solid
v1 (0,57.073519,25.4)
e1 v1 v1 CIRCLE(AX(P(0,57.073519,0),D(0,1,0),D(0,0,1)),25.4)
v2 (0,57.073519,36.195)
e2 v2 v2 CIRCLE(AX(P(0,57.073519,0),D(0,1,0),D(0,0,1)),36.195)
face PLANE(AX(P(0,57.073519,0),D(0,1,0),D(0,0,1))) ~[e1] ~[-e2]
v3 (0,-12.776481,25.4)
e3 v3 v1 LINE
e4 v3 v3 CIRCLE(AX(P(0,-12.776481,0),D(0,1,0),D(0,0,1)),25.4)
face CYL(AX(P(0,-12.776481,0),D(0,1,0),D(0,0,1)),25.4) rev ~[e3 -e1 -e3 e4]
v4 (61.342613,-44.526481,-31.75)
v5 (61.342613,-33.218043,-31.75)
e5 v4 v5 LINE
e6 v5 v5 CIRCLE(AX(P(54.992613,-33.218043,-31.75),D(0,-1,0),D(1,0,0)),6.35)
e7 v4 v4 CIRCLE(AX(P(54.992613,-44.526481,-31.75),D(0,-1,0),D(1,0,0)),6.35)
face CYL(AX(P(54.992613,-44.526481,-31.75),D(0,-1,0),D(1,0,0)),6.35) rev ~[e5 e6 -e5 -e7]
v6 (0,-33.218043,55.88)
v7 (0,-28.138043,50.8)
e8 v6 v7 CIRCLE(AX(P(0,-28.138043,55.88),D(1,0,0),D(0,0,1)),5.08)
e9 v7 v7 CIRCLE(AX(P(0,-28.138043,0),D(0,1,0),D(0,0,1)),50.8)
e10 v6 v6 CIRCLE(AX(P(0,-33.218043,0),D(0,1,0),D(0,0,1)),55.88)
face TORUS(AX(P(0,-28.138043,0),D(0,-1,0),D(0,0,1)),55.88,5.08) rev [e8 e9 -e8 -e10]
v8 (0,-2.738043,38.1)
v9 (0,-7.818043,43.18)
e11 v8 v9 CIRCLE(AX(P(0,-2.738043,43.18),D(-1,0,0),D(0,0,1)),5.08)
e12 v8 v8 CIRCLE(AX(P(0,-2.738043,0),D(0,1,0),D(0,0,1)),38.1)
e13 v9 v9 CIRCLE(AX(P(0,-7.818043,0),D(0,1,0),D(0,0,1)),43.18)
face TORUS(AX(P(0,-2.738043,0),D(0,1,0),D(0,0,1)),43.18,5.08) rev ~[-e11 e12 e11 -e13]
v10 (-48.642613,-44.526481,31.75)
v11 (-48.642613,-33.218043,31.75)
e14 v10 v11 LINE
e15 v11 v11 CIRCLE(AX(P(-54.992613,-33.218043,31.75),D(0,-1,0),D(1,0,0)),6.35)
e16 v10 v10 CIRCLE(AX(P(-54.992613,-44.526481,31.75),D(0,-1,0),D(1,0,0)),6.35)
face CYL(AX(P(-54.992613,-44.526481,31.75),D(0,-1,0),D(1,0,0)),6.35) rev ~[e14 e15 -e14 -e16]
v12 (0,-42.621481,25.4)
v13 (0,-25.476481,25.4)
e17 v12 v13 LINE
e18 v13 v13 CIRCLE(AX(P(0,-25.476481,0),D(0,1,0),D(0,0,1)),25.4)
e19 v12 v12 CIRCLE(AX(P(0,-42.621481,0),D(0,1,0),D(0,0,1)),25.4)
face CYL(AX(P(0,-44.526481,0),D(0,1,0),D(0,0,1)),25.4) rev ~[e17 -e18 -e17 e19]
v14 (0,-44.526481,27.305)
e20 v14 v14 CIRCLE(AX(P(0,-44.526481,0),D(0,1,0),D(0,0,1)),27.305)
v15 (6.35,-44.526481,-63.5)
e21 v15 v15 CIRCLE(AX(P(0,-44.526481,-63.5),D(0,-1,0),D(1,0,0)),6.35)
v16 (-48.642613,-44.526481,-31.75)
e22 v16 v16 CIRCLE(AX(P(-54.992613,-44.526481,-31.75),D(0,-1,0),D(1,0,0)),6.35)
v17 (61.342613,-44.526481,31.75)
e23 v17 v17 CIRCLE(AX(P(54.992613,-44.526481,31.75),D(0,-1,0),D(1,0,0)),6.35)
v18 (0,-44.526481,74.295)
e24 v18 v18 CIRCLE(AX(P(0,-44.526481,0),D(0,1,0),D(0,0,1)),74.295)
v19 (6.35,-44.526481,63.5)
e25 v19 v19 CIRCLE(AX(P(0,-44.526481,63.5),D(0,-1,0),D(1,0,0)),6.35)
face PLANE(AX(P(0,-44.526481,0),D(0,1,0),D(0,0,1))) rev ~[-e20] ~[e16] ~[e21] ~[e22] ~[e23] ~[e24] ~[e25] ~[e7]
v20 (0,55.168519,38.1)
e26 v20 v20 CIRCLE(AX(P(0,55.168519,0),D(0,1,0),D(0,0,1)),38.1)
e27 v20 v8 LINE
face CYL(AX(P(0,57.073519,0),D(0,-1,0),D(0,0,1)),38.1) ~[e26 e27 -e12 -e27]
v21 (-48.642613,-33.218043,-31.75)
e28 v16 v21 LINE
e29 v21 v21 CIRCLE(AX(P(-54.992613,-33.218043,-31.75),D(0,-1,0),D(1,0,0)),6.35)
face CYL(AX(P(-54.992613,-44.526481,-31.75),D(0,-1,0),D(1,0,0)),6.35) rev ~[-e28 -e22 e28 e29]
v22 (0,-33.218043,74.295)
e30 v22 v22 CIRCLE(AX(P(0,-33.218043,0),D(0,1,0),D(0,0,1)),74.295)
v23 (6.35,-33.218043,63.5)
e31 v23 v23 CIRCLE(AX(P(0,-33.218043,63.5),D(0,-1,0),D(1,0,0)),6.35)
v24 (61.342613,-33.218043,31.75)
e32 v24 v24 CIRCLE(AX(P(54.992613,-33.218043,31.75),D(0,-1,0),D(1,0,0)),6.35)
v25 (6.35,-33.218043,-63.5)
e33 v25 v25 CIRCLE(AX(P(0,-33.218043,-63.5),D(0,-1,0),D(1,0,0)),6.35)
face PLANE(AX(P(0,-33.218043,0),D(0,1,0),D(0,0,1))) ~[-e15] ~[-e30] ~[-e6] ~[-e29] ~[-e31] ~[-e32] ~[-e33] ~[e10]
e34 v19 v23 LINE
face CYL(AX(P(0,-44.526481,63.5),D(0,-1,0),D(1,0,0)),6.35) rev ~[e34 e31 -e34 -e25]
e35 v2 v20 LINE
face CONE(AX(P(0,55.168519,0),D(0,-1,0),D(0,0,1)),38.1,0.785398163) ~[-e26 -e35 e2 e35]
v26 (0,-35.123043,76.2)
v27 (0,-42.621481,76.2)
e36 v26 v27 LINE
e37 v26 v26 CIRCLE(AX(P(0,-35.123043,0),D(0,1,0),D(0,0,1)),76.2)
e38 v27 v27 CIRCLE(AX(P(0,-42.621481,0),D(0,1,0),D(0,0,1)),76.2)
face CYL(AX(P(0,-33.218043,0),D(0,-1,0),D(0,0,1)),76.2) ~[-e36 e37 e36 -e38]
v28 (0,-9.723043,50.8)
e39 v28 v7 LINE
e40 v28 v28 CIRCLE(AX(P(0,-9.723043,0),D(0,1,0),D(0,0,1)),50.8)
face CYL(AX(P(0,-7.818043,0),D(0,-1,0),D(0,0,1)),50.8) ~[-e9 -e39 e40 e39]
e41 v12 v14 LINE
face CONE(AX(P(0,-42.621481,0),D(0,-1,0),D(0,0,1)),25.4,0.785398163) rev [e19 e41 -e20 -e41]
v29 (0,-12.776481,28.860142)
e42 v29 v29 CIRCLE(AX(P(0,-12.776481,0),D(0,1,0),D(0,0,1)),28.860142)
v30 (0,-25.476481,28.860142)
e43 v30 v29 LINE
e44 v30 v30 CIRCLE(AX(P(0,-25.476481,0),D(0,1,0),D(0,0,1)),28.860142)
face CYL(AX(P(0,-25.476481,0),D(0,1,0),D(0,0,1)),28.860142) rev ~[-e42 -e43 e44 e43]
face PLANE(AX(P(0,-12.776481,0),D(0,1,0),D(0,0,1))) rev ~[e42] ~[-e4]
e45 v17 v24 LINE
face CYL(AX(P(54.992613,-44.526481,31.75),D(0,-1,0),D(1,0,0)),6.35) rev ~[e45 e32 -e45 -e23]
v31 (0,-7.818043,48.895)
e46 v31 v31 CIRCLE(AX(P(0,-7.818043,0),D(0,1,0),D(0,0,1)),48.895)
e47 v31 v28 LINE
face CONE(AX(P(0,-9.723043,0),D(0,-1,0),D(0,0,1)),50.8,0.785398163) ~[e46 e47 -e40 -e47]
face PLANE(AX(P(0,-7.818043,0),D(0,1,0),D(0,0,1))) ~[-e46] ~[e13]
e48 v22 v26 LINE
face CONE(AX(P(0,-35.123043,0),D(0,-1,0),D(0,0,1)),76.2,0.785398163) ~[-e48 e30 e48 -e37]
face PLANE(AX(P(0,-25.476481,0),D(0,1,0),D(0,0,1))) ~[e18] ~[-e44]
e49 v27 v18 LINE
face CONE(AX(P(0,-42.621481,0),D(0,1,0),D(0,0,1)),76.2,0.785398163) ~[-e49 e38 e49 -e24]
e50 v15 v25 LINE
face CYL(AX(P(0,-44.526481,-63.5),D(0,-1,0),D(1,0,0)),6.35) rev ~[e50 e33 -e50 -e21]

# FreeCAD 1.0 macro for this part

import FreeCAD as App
import Part
import Sketcher
Q = App.Units.Quantity


def edges_at(feature, points):
    """Names of the edges that pass closest to the given points."""
    edges = feature.Shape.Edges
    near = lambda p: min(range(len(edges)), key=lambda i: edges[i].distToShape(Part.Vertex(*p))[0])
    return sorted({f"Edge{near(p) + 1}" for p in points})


def add_polygon(sketch, points):
    """Adds a closed chain of lines whose ends are joined by coincident constraints."""
    first, n = sketch.GeometryCount, len(points)
    for a, b in zip(points, points[1:] + points[:1]):
        sketch.addGeometry(Part.LineSegment(App.Vector(*a, 0), App.Vector(*b, 0)), False)
    for i in range(n):
        sketch.addConstraint(Sketcher.Constraint("Coincident", first + i, 2, first + (i + 1) % n, 1))

doc = App.newDocument("Part")
body = doc.addObject("PartDesign::Body", "Body")

sketch1 = body.newObject("Sketcher::SketchObject", "Sketch")
sketch1.AttachmentSupport = (doc.getObject("YZ_Plane"), [""])
sketch1.MapMode = "FlatFace"
add_polygon(sketch1, [(-44.5, 25.4), (-25.5, 25.4), (-25.5, 28.9), (-12.8, 28.9), (-12.8, 25.4), (57.1, 25.4), (57.1, 38.1), (-7.8, 38.1), (-7.8, 50.8), (-33.2, 50.8), (-33.2, 76.2), (-44.5, 76.2)])
sketch1.addConstraint(Sketcher.Constraint("Horizontal", 0))
sketch1.addConstraint(Sketcher.Constraint("Vertical", 1))
sketch1.addConstraint(Sketcher.Constraint("Horizontal", 2))
sketch1.addConstraint(Sketcher.Constraint("Vertical", 3))
sketch1.addConstraint(Sketcher.Constraint("Horizontal", 4))
sketch1.addConstraint(Sketcher.Constraint("Vertical", 5))
sketch1.addConstraint(Sketcher.Constraint("Horizontal", 6))
sketch1.addConstraint(Sketcher.Constraint("Vertical", 7))
sketch1.addConstraint(Sketcher.Constraint("Horizontal", 8))
sketch1.addConstraint(Sketcher.Constraint("Vertical", 9))
sketch1.addConstraint(Sketcher.Constraint("Horizontal", 10))
sketch1.addConstraint(Sketcher.Constraint("Vertical", 11))
sketch1.addConstraint(Sketcher.Constraint("Horizontal", 0, 2, 3, 2))
sketch1.addConstraint(Sketcher.Constraint("Equal", 2, 5))
sketch1.addConstraint(Sketcher.Constraint("Equal", 5, 7))
sketch1.addConstraint(Sketcher.Constraint("Equal", 8, 9))
sketch1.addConstraint(Sketcher.Constraint("DistanceX", 8, 2, 8, 1, Q("1 in")))
sketch1.addConstraint(Sketcher.Constraint("DistanceY", 11, 2, 11, 1, Q("2 in")))
sketch1.addConstraint(Sketcher.Constraint("DistanceY", -1, 1, 0, 2, Q("1 in")))
sketch1.addConstraint(Sketcher.Constraint("DistanceX", 0, 1, 0, 2, Q("0.75 in")))
sketch1.addConstraint(Sketcher.Constraint("DistanceX", 4, 1, 4, 2, Q("2.75 in")))
sketch1.addConstraint(Sketcher.Constraint("DistanceX", 6, 2, 6, 1, 64.891562))
sketch1.addConstraint(Sketcher.Constraint("DistanceY", 1, 1, 1, 2, 3.460142))
sketch1.addConstraint(Sketcher.Constraint("DistanceX", 0, 2, -1, 1, 25.476481))
revolution = body.newObject("PartDesign::Revolution", "Revolution")
revolution.Profile = sketch1
revolution.ReferenceAxis = (sketch1, ["H_Axis"])
revolution.Angle = 360
doc.recompute()

chamfer = body.newObject("PartDesign::Chamfer", "Chamfer")
chamfer.Base = (revolution, edges_at(revolution, [
    (0, -44.526, -76.2),
    (0, -33.218, -76.2),
    (0, -7.818, -50.8),
    (0, 57.074, -38.1),
    (0, -44.526, -25.4),
]))
chamfer.Size = Q("0.075 in")
doc.recompute()

fillet = body.newObject("PartDesign::Fillet", "Fillet")
fillet.Base = (chamfer, edges_at(chamfer, [(0, -33.218, -50.8), (0, -7.818, -38.1)]))
fillet.Radius = Q("0.2 in")

sketch2 = body.newObject("Sketcher::SketchObject", "Sketch001")
sketch2.AttachmentSupport = (doc.getObject("XZ_Plane"), [""])
sketch2.MapMode = "FlatFace"
sketch2.AttachmentOffset = App.Placement(App.Vector(0, 0, 44.526481), App.Rotation())
sketch2.addGeometry(Part.Circle(App.Vector(-55, 32, 0), App.Vector(0, 0, 1), 6), False)
sketch2.addGeometry(Part.Circle(App.Vector(-55, -32, 0), App.Vector(0, 0, 1), 6), False)
sketch2.addGeometry(Part.Circle(App.Vector(0, -64, 0), App.Vector(0, 0, 1), 6), False)
sketch2.addGeometry(Part.Circle(App.Vector(55, -32, 0), App.Vector(0, 0, 1), 6), False)
sketch2.addGeometry(Part.Circle(App.Vector(55, 32, 0), App.Vector(0, 0, 1), 6), False)
sketch2.addGeometry(Part.Circle(App.Vector(0, 64, 0), App.Vector(0, 0, 1), 6), False)
sketch2.addConstraint(Sketcher.Constraint("Equal", 0, 1))
sketch2.addConstraint(Sketcher.Constraint("Equal", 1, 2))
sketch2.addConstraint(Sketcher.Constraint("Equal", 2, 3))
sketch2.addConstraint(Sketcher.Constraint("Equal", 3, 4))
sketch2.addConstraint(Sketcher.Constraint("Equal", 4, 5))
sketch2.addConstraint(Sketcher.Constraint("Symmetric", 0, 3, 3, 3, -1, 1))
sketch2.addConstraint(Sketcher.Constraint("Symmetric", 1, 3, 4, 3, -1, 1))
sketch2.addConstraint(Sketcher.Constraint("Symmetric", 2, 3, 5, 3, -1, 1))
sketch2.addConstraint(Sketcher.Constraint("Symmetric", 1, 3, 3, 3, -2))
sketch2.addConstraint(Sketcher.Constraint("PointOnObject", 2, 3, -2))
sketch2.addConstraint(Sketcher.Constraint("Diameter", 0, Q("0.5 in")))
sketch2.addConstraint(Sketcher.Constraint("DistanceY", 2, 3, 5, 3, Q("5 in")))
sketch2.addConstraint(Sketcher.Constraint("DistanceY", 1, 3, 0, 3, Q("2.5 in")))
sketch2.addConstraint(Sketcher.Constraint("DistanceX", 0, 3, -1, 1, 54.992613))
pocket1 = body.newObject("PartDesign::Pocket", "Pocket")
pocket1.Profile = sketch2
pocket1.Length = Q("0.625 in")

doc.recompute()
